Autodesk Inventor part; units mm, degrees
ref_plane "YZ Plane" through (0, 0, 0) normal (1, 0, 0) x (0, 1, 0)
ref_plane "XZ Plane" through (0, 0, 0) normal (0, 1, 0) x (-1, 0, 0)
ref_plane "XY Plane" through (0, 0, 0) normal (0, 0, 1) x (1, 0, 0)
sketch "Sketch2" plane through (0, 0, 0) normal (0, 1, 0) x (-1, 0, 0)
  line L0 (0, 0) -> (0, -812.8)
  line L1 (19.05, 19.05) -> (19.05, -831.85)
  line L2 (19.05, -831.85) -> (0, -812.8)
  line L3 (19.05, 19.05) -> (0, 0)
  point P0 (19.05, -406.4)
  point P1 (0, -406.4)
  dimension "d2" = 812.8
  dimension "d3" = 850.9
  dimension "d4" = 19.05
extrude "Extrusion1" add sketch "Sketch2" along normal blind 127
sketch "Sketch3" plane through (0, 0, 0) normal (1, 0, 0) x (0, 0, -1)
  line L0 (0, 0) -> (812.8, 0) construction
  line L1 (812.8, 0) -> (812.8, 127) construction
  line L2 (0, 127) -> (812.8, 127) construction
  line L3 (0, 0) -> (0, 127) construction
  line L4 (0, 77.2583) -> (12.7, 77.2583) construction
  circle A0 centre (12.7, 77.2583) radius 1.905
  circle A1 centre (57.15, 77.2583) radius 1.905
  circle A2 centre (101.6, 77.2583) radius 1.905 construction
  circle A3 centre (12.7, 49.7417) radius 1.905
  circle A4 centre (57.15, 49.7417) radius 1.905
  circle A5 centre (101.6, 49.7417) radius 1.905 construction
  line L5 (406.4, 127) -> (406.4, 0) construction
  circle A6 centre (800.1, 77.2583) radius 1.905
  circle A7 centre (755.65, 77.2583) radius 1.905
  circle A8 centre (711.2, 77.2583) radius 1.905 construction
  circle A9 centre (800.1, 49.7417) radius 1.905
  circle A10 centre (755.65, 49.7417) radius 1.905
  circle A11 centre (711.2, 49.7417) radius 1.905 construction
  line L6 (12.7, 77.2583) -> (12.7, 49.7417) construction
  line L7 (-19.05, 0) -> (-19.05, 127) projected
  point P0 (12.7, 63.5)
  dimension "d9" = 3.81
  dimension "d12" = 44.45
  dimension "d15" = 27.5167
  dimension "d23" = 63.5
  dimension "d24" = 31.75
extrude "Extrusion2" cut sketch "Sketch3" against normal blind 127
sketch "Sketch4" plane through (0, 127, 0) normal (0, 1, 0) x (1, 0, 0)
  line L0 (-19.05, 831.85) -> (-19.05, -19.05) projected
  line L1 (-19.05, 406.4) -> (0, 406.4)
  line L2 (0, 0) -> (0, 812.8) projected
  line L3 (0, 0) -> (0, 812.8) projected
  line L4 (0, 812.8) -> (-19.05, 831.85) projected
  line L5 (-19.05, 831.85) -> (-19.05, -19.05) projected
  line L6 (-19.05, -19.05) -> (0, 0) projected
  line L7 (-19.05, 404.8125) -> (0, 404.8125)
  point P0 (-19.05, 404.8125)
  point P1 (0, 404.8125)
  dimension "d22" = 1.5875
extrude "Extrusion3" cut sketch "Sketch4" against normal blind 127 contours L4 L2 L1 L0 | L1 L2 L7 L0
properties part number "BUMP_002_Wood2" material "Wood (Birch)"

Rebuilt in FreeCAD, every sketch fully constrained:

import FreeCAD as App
import Part
import Sketcher
Q = App.Units.Quantity


def add_polygon(sketch, points):
    """Adds a closed chain of lines whose ends are joined by coincident constraints."""
    first, n = sketch.GeometryCount, len(points)
    for a, b in zip(points, points[1:] + points[:1]):
        sketch.addGeometry(Part.LineSegment(App.Vector(*a, 0), App.Vector(*b, 0)), False)
    for i in range(n):
        sketch.addConstraint(Sketcher.Constraint("Coincident", first + i, 2, first + (i + 1) % n, 1))

doc = App.newDocument("Part")
body = doc.addObject("PartDesign::Body", "Body")

# Sketch on XZ plane
sketch1 = body.newObject("Sketcher::SketchObject", "Sketch")
sketch1.AttachmentSupport = (doc.getObject("XZ_Plane"), [""])
sketch1.MapMode = "FlatFace"
add_polygon(sketch1, [(-19, 19), (0, 0), (0, -813), (-19, -832)])  # lines 0-3
sketch1.addConstraint([
    Sketcher.Constraint("Vertical", 1),
    Sketcher.Constraint("Vertical", 3),
    Sketcher.Constraint("Coincident", 0, 2, -1, 1),
    Sketcher.Constraint("Perpendicular", 0, 2),
    Sketcher.Constraint("Equal", 0, 2),
    Sketcher.Constraint("DistanceY", 1, 2, 1, 1, Q("32 in")),
    Sketcher.Constraint("DistanceY", 3, 1, 3, 2, Q("33.5 in")),
])
pad1 = body.newObject("PartDesign::Pad", "Pad")
pad1.Profile = sketch1
pad1.Length = Q("5 in")
pad1.Reversed = True

# Sketch on YZ plane
sketch2 = body.newObject("Sketcher::SketchObject", "Sketch001")
sketch2.AttachmentSupport = (doc.getObject("YZ_Plane"), [""])
sketch2.MapMode = "FlatFace"
sketch2.addGeometry([
    Part.Circle(App.Vector(77.3, -12.7, 0), App.Vector(0, 0, 1), 1.9),  # 0
    Part.Circle(App.Vector(77.3, -57.1, 0), App.Vector(0, 0, 1), 1.9),  # 1
    Part.Circle(App.Vector(49.7, -12.7, 0), App.Vector(0, 0, 1), 1.9),  # 2
    Part.Circle(App.Vector(49.7, -57.1, 0), App.Vector(0, 0, 1), 1.9),  # 3
    Part.Circle(App.Vector(77.3, -800.1, 0), App.Vector(0, 0, 1), 1.9),  # 4
    Part.Circle(App.Vector(77.3, -755.6, 0), App.Vector(0, 0, 1), 1.9),  # 5
    Part.Circle(App.Vector(49.7, -800.1, 0), App.Vector(0, 0, 1), 1.9),  # 6
    Part.Circle(App.Vector(49.7, -755.6, 0), App.Vector(0, 0, 1), 1.9),  # 7
], False)
sketch2.addConstraint([
    Sketcher.Constraint("Equal", 0, 1),
    Sketcher.Constraint("Equal", 1, 2),
    Sketcher.Constraint("Equal", 2, 3),
    Sketcher.Constraint("Equal", 3, 4),
    Sketcher.Constraint("Equal", 4, 5),
    Sketcher.Constraint("Equal", 5, 6),
    Sketcher.Constraint("Equal", 6, 7),
    Sketcher.Constraint("Horizontal", 0, 3, 2, 3),
    Sketcher.Constraint("Horizontal", 1, 3, 3, 3),
    Sketcher.Constraint("Horizontal", 4, 3, 6, 3),
    Sketcher.Constraint("Horizontal", 5, 3, 7, 3),
    Sketcher.Constraint("Vertical", 0, 3, 1, 3),
    Sketcher.Constraint("Vertical", 2, 3, 3, 3),
    Sketcher.Constraint("Vertical", 1, 3, 4, 3),
    Sketcher.Constraint("Vertical", 4, 3, 5, 3),
    Sketcher.Constraint("Vertical", 3, 3, 6, 3),
    Sketcher.Constraint("Vertical", 6, 3, 7, 3),
    Sketcher.Constraint("Diameter", 0, Q("0.15 in")),
    Sketcher.Constraint("DistanceY", 1, 3, 0, 3, Q("1.75 in")),
    Sketcher.Constraint("DistanceY", 4, 3, 5, 3, Q("1.75 in")),
    Sketcher.Constraint("DistanceY", 4, 3, 0, 3, Q("31 in")),
    Sketcher.Constraint("DistanceY", 0, 3, -1, 1, Q("0.5 in")),
    Sketcher.Constraint("DistanceX", 2, 3, 0, 3, 27.5166),
    Sketcher.Constraint("DistanceX", -1, 1, 0, 3, 77.2583),
])
pocket1 = body.newObject("PartDesign::Pocket", "Pocket")
pocket1.Profile = sketch2
pocket1.Length = Q("5 in")

# Sketch on XZ plane
sketch3 = body.newObject("Sketcher::SketchObject", "Sketch002")
sketch3.AttachmentSupport = (doc.getObject("XZ_Plane"), [""])
sketch3.MapMode = "FlatFace"
sketch3.AttachmentOffset = App.Placement(App.Vector(0, 0, -5 * 25.4), App.Rotation())
add_polygon(sketch3, [(0, -813), (-19, -832), (-19, -405), (0, -405)])  # lines 0-3
sketch3.addConstraint([
    Sketcher.Constraint("Vertical", 1),
    Sketcher.Constraint("Horizontal", 2),
    Sketcher.Constraint("Vertical", 3),
    Sketcher.Constraint("PointOnObject", 2, 2, -2),
    Sketcher.Constraint("DistanceY", 3, 2, -1, 1, Q("32 in")),
    Sketcher.Constraint("Angle", 0, Q("-135 deg")),
    Sketcher.Constraint("DistanceX", 2, 1, 2, 2, Q("0.75 in")),
    Sketcher.Constraint("DistanceY", 1, 1, 1, 2, Q("16.8125 in")),
])
pocket2 = body.newObject("PartDesign::Pocket", "Pocket001")
pocket2.Profile = sketch3
pocket2.Length = Q("5 in")
pocket2.Reversed = True

doc.recompute()
